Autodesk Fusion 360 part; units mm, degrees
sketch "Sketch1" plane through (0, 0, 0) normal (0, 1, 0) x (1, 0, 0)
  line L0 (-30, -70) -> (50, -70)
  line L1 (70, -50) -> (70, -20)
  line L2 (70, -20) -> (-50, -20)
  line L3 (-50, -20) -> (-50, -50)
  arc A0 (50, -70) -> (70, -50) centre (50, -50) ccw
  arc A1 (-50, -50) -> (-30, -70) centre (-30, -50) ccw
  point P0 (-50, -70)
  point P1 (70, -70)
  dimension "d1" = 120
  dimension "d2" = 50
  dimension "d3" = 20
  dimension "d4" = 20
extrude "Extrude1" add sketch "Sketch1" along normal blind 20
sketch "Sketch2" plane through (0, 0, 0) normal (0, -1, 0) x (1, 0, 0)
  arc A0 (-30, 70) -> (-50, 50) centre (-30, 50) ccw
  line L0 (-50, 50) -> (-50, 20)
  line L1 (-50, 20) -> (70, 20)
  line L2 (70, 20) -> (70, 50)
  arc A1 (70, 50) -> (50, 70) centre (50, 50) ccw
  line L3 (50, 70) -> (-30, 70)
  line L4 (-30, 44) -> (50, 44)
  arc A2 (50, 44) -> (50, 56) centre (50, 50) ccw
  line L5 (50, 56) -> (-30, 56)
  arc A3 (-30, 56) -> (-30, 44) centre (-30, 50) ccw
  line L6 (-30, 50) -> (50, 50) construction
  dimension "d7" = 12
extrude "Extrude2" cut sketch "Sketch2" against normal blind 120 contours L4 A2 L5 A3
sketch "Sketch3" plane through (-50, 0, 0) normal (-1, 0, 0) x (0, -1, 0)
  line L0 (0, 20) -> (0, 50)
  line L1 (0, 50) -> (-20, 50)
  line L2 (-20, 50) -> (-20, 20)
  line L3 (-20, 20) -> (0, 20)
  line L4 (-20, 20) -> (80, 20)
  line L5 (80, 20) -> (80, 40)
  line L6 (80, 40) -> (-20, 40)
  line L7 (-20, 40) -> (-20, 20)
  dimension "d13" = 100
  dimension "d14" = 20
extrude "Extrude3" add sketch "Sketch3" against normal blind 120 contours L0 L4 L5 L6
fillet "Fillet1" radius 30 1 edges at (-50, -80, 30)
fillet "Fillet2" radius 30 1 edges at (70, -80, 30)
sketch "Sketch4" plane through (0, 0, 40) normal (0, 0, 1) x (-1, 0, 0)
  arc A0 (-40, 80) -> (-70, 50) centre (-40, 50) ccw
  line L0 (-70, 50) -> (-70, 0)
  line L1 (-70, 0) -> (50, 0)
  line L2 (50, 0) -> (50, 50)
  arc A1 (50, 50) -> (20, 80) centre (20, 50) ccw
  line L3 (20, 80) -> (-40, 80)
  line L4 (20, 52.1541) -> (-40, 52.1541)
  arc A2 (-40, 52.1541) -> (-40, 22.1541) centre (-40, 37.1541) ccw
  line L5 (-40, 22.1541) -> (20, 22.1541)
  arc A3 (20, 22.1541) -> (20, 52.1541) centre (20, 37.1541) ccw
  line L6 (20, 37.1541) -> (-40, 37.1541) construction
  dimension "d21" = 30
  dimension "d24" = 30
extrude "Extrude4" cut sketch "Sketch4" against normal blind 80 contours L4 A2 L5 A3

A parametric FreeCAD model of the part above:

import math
import FreeCAD as App
import Part
import Sketcher

V = App.Vector
Q = App.Units.Quantity


def edges_at(feature, points):
    """Names of the edges that pass closest to the given points."""
    edges = feature.Shape.Edges
    near = lambda p: min(range(len(edges)), key=lambda i: edges[i].distToShape(Part.Vertex(*p))[0])
    return sorted({f"Edge{near(p) + 1}" for p in points})

doc = App.newDocument("Part")
body = doc.addObject("PartDesign::Body", "Body")

# Sketch on XZ plane
sketch1 = body.newObject("Sketcher::SketchObject", "Sketch")
sketch1.AttachmentSupport = (doc.getObject("XZ_Plane"), [""])
sketch1.MapMode = "FlatFace"
sketch1.addGeometry(Part.ArcOfCircle(Part.Circle(V(-30, 50, 0), V(0, 0, 1), 20), math.radians(90), math.radians(180)), False)
sketch1.addGeometry(Part.LineSegment(V(-30, 70, 0), V(50, 70, 0)), False)
sketch1.addGeometry(Part.ArcOfCircle(Part.Circle(V(50, 50, 0), V(0, 0, 1), 20), math.radians(0), math.radians(90)), False)
sketch1.addGeometry(Part.LineSegment(V(70, 50, 0), V(70, 20, 0)), False)
sketch1.addGeometry(Part.LineSegment(V(70, 20, 0), V(-50, 20, 0)), False)
sketch1.addGeometry(Part.LineSegment(V(-50, 20, 0), V(-50, 50, 0)), False)
sketch1.addConstraint(Sketcher.Constraint("Tangent", 0, 1, 1, 1))
sketch1.addConstraint(Sketcher.Constraint("Tangent", 1, 2, 2, 2))
sketch1.addConstraint(Sketcher.Constraint("Tangent", 2, 1, 3, 1))
sketch1.addConstraint(Sketcher.Constraint("Coincident", 3, 2, 4, 1))
sketch1.addConstraint(Sketcher.Constraint("Coincident", 4, 2, 5, 1))
sketch1.addConstraint(Sketcher.Constraint("Tangent", 5, 2, 0, 2))
sketch1.addConstraint(Sketcher.Constraint("Horizontal", 1))
sketch1.addConstraint(Sketcher.Constraint("Vertical", 3))
sketch1.addConstraint(Sketcher.Constraint("Horizontal", 4))
sketch1.addConstraint(Sketcher.Constraint("Vertical", 5))
sketch1.addConstraint(Sketcher.Constraint("Equal", 0, 2))
sketch1.addConstraint(Sketcher.Constraint("Radius", 0, Q("20 mm")))
sketch1.addConstraint(Sketcher.Constraint("DistanceX", 4, 2, 4, 1, Q("120 mm")))
sketch1.addConstraint(Sketcher.Constraint("DistanceY", -1, 1, 0, 3, Q("50 mm")))
sketch1.addConstraint(Sketcher.Constraint("DistanceX", -1, 1, 2, 3, Q("50 mm")))
sketch1.addConstraint(Sketcher.Constraint("DistanceY", -1, 1, 3, 2, Q("20 mm")))
pad1 = body.newObject("PartDesign::Pad", "Pad")
pad1.Profile = sketch1
pad1.Length = 20
pad1.Reversed = True

# Sketch on XZ plane
sketch2 = body.newObject("Sketcher::SketchObject", "Sketch001")
sketch2.AttachmentSupport = (doc.getObject("XZ_Plane"), [""])
sketch2.MapMode = "FlatFace"
sketch2.addGeometry(Part.ArcOfCircle(Part.Circle(V(-30, 50, 0), V(0, 0, 1), 6), math.radians(90), math.radians(270)), False)
sketch2.addGeometry(Part.LineSegment(V(-30, 44, 0), V(50, 44, 0)), False)
sketch2.addGeometry(Part.ArcOfCircle(Part.Circle(V(50, 50, 0), V(0, 0, 1), 6), math.radians(-90), math.radians(90)), False)
sketch2.addGeometry(Part.LineSegment(V(50, 56, 0), V(-30, 56, 0)), False)
sketch2.addConstraint(Sketcher.Constraint("Tangent", 0, 2, 1, 1))
sketch2.addConstraint(Sketcher.Constraint("Tangent", 1, 2, 2, 1))
sketch2.addConstraint(Sketcher.Constraint("Tangent", 2, 2, 3, 1))
sketch2.addConstraint(Sketcher.Constraint("Tangent", 3, 2, 0, 1))
sketch2.addConstraint(Sketcher.Constraint("Horizontal", 1))
sketch2.addConstraint(Sketcher.Constraint("Horizontal", 3))
sketch2.addConstraint(Sketcher.Constraint("Radius", 0, Q("6 mm")))
sketch2.addConstraint(Sketcher.Constraint("DistanceX", 1, 1, 1, 2, Q("80 mm")))
sketch2.addConstraint(Sketcher.Constraint("DistanceX", 0, 3, -1, 1, Q("30 mm")))
sketch2.addConstraint(Sketcher.Constraint("DistanceY", -1, 1, 0, 3, Q("50 mm")))
pocket1 = body.newObject("PartDesign::Pocket", "Pocket")
pocket1.Profile = sketch2
pocket1.Length = 120

# Sketch on YZ plane
sketch3 = body.newObject("Sketcher::SketchObject", "Sketch002")
sketch3.AttachmentSupport = (doc.getObject("YZ_Plane"), [""])
sketch3.MapMode = "FlatFace"
sketch3.AttachmentOffset = App.Placement(V(0, 0, -50), App.Rotation())
sketch3.addGeometry(Part.LineSegment(V(0, 40, 0), V(0, 20, 0)), False)
sketch3.addGeometry(Part.LineSegment(V(0, 20, 0), V(-80, 20, 0)), False)
sketch3.addGeometry(Part.LineSegment(V(-80, 20, 0), V(-80, 40, 0)), False)
sketch3.addGeometry(Part.LineSegment(V(-80, 40, 0), V(0, 40, 0)), False)
sketch3.addConstraint(Sketcher.Constraint("Coincident", 0, 2, 1, 1))
sketch3.addConstraint(Sketcher.Constraint("Coincident", 1, 2, 2, 1))
sketch3.addConstraint(Sketcher.Constraint("Coincident", 2, 2, 3, 1))
sketch3.addConstraint(Sketcher.Constraint("Coincident", 3, 2, 0, 1))
sketch3.addConstraint(Sketcher.Constraint("Vertical", 0))
sketch3.addConstraint(Sketcher.Constraint("Horizontal", 1))
sketch3.addConstraint(Sketcher.Constraint("Vertical", 2))
sketch3.addConstraint(Sketcher.Constraint("Horizontal", 3))
sketch3.addConstraint(Sketcher.Constraint("PointOnObject", 0, 2, -2))
sketch3.addConstraint(Sketcher.Constraint("DistanceY", 0, 2, 0, 1, Q("20 mm")))
sketch3.addConstraint(Sketcher.Constraint("DistanceY", -1, 1, 0, 2, Q("20 mm")))
sketch3.addConstraint(Sketcher.Constraint("DistanceX", 1, 2, 1, 1, Q("80 mm")))
pad2 = body.newObject("PartDesign::Pad", "Pad001")
pad2.Profile = sketch3
pad2.Length = 120
doc.recompute()

fillet = body.newObject("PartDesign::Fillet", "Fillet")
fillet.Base = (pad2, edges_at(pad2, [(-50, -80, 30)]))
fillet.Radius = 30
doc.recompute()

fillet2 = body.newObject("PartDesign::Fillet", "Fillet001")
fillet2.Base = (fillet, edges_at(fillet, [(70, -80, 30)]))
fillet2.Radius = 30

# Sketch on XY plane
sketch4 = body.newObject("Sketcher::SketchObject", "Sketch003")
sketch4.AttachmentSupport = (doc.getObject("XY_Plane"), [""])
sketch4.MapMode = "FlatFace"
sketch4.AttachmentOffset = App.Placement(V(0, 0, 40), App.Rotation())
sketch4.addGeometry(Part.ArcOfCircle(Part.Circle(V(-20, -37, 0), V(0, 0, 1), 15), math.radians(90), math.radians(270)), False)
sketch4.addGeometry(Part.LineSegment(V(-20, -52, 0), V(40, -52, 0)), False)
sketch4.addGeometry(Part.ArcOfCircle(Part.Circle(V(40, -37, 0), V(0, 0, 1), 15), math.radians(-90), math.radians(90)), False)
sketch4.addGeometry(Part.LineSegment(V(40, -22, 0), V(-20, -22, 0)), False)
sketch4.addConstraint(Sketcher.Constraint("Tangent", 0, 2, 1, 1))
sketch4.addConstraint(Sketcher.Constraint("Tangent", 1, 2, 2, 1))
sketch4.addConstraint(Sketcher.Constraint("Tangent", 2, 2, 3, 1))
sketch4.addConstraint(Sketcher.Constraint("Tangent", 3, 2, 0, 1))
sketch4.addConstraint(Sketcher.Constraint("Horizontal", 1))
sketch4.addConstraint(Sketcher.Constraint("Horizontal", 3))
sketch4.addConstraint(Sketcher.Constraint("Radius", 0, Q("15 mm")))
sketch4.addConstraint(Sketcher.Constraint("DistanceX", 1, 1, 1, 2, Q("60 mm")))
sketch4.addConstraint(Sketcher.Constraint("DistanceX", 0, 3, -1, 1, Q("20 mm")))
sketch4.addConstraint(Sketcher.Constraint("DistanceY", 0, 3, -1, 1, Q("37.154 mm")))
pocket2 = body.newObject("PartDesign::Pocket", "Pocket001")
pocket2.Profile = sketch4
pocket2.Length = 80

doc.recompute()
